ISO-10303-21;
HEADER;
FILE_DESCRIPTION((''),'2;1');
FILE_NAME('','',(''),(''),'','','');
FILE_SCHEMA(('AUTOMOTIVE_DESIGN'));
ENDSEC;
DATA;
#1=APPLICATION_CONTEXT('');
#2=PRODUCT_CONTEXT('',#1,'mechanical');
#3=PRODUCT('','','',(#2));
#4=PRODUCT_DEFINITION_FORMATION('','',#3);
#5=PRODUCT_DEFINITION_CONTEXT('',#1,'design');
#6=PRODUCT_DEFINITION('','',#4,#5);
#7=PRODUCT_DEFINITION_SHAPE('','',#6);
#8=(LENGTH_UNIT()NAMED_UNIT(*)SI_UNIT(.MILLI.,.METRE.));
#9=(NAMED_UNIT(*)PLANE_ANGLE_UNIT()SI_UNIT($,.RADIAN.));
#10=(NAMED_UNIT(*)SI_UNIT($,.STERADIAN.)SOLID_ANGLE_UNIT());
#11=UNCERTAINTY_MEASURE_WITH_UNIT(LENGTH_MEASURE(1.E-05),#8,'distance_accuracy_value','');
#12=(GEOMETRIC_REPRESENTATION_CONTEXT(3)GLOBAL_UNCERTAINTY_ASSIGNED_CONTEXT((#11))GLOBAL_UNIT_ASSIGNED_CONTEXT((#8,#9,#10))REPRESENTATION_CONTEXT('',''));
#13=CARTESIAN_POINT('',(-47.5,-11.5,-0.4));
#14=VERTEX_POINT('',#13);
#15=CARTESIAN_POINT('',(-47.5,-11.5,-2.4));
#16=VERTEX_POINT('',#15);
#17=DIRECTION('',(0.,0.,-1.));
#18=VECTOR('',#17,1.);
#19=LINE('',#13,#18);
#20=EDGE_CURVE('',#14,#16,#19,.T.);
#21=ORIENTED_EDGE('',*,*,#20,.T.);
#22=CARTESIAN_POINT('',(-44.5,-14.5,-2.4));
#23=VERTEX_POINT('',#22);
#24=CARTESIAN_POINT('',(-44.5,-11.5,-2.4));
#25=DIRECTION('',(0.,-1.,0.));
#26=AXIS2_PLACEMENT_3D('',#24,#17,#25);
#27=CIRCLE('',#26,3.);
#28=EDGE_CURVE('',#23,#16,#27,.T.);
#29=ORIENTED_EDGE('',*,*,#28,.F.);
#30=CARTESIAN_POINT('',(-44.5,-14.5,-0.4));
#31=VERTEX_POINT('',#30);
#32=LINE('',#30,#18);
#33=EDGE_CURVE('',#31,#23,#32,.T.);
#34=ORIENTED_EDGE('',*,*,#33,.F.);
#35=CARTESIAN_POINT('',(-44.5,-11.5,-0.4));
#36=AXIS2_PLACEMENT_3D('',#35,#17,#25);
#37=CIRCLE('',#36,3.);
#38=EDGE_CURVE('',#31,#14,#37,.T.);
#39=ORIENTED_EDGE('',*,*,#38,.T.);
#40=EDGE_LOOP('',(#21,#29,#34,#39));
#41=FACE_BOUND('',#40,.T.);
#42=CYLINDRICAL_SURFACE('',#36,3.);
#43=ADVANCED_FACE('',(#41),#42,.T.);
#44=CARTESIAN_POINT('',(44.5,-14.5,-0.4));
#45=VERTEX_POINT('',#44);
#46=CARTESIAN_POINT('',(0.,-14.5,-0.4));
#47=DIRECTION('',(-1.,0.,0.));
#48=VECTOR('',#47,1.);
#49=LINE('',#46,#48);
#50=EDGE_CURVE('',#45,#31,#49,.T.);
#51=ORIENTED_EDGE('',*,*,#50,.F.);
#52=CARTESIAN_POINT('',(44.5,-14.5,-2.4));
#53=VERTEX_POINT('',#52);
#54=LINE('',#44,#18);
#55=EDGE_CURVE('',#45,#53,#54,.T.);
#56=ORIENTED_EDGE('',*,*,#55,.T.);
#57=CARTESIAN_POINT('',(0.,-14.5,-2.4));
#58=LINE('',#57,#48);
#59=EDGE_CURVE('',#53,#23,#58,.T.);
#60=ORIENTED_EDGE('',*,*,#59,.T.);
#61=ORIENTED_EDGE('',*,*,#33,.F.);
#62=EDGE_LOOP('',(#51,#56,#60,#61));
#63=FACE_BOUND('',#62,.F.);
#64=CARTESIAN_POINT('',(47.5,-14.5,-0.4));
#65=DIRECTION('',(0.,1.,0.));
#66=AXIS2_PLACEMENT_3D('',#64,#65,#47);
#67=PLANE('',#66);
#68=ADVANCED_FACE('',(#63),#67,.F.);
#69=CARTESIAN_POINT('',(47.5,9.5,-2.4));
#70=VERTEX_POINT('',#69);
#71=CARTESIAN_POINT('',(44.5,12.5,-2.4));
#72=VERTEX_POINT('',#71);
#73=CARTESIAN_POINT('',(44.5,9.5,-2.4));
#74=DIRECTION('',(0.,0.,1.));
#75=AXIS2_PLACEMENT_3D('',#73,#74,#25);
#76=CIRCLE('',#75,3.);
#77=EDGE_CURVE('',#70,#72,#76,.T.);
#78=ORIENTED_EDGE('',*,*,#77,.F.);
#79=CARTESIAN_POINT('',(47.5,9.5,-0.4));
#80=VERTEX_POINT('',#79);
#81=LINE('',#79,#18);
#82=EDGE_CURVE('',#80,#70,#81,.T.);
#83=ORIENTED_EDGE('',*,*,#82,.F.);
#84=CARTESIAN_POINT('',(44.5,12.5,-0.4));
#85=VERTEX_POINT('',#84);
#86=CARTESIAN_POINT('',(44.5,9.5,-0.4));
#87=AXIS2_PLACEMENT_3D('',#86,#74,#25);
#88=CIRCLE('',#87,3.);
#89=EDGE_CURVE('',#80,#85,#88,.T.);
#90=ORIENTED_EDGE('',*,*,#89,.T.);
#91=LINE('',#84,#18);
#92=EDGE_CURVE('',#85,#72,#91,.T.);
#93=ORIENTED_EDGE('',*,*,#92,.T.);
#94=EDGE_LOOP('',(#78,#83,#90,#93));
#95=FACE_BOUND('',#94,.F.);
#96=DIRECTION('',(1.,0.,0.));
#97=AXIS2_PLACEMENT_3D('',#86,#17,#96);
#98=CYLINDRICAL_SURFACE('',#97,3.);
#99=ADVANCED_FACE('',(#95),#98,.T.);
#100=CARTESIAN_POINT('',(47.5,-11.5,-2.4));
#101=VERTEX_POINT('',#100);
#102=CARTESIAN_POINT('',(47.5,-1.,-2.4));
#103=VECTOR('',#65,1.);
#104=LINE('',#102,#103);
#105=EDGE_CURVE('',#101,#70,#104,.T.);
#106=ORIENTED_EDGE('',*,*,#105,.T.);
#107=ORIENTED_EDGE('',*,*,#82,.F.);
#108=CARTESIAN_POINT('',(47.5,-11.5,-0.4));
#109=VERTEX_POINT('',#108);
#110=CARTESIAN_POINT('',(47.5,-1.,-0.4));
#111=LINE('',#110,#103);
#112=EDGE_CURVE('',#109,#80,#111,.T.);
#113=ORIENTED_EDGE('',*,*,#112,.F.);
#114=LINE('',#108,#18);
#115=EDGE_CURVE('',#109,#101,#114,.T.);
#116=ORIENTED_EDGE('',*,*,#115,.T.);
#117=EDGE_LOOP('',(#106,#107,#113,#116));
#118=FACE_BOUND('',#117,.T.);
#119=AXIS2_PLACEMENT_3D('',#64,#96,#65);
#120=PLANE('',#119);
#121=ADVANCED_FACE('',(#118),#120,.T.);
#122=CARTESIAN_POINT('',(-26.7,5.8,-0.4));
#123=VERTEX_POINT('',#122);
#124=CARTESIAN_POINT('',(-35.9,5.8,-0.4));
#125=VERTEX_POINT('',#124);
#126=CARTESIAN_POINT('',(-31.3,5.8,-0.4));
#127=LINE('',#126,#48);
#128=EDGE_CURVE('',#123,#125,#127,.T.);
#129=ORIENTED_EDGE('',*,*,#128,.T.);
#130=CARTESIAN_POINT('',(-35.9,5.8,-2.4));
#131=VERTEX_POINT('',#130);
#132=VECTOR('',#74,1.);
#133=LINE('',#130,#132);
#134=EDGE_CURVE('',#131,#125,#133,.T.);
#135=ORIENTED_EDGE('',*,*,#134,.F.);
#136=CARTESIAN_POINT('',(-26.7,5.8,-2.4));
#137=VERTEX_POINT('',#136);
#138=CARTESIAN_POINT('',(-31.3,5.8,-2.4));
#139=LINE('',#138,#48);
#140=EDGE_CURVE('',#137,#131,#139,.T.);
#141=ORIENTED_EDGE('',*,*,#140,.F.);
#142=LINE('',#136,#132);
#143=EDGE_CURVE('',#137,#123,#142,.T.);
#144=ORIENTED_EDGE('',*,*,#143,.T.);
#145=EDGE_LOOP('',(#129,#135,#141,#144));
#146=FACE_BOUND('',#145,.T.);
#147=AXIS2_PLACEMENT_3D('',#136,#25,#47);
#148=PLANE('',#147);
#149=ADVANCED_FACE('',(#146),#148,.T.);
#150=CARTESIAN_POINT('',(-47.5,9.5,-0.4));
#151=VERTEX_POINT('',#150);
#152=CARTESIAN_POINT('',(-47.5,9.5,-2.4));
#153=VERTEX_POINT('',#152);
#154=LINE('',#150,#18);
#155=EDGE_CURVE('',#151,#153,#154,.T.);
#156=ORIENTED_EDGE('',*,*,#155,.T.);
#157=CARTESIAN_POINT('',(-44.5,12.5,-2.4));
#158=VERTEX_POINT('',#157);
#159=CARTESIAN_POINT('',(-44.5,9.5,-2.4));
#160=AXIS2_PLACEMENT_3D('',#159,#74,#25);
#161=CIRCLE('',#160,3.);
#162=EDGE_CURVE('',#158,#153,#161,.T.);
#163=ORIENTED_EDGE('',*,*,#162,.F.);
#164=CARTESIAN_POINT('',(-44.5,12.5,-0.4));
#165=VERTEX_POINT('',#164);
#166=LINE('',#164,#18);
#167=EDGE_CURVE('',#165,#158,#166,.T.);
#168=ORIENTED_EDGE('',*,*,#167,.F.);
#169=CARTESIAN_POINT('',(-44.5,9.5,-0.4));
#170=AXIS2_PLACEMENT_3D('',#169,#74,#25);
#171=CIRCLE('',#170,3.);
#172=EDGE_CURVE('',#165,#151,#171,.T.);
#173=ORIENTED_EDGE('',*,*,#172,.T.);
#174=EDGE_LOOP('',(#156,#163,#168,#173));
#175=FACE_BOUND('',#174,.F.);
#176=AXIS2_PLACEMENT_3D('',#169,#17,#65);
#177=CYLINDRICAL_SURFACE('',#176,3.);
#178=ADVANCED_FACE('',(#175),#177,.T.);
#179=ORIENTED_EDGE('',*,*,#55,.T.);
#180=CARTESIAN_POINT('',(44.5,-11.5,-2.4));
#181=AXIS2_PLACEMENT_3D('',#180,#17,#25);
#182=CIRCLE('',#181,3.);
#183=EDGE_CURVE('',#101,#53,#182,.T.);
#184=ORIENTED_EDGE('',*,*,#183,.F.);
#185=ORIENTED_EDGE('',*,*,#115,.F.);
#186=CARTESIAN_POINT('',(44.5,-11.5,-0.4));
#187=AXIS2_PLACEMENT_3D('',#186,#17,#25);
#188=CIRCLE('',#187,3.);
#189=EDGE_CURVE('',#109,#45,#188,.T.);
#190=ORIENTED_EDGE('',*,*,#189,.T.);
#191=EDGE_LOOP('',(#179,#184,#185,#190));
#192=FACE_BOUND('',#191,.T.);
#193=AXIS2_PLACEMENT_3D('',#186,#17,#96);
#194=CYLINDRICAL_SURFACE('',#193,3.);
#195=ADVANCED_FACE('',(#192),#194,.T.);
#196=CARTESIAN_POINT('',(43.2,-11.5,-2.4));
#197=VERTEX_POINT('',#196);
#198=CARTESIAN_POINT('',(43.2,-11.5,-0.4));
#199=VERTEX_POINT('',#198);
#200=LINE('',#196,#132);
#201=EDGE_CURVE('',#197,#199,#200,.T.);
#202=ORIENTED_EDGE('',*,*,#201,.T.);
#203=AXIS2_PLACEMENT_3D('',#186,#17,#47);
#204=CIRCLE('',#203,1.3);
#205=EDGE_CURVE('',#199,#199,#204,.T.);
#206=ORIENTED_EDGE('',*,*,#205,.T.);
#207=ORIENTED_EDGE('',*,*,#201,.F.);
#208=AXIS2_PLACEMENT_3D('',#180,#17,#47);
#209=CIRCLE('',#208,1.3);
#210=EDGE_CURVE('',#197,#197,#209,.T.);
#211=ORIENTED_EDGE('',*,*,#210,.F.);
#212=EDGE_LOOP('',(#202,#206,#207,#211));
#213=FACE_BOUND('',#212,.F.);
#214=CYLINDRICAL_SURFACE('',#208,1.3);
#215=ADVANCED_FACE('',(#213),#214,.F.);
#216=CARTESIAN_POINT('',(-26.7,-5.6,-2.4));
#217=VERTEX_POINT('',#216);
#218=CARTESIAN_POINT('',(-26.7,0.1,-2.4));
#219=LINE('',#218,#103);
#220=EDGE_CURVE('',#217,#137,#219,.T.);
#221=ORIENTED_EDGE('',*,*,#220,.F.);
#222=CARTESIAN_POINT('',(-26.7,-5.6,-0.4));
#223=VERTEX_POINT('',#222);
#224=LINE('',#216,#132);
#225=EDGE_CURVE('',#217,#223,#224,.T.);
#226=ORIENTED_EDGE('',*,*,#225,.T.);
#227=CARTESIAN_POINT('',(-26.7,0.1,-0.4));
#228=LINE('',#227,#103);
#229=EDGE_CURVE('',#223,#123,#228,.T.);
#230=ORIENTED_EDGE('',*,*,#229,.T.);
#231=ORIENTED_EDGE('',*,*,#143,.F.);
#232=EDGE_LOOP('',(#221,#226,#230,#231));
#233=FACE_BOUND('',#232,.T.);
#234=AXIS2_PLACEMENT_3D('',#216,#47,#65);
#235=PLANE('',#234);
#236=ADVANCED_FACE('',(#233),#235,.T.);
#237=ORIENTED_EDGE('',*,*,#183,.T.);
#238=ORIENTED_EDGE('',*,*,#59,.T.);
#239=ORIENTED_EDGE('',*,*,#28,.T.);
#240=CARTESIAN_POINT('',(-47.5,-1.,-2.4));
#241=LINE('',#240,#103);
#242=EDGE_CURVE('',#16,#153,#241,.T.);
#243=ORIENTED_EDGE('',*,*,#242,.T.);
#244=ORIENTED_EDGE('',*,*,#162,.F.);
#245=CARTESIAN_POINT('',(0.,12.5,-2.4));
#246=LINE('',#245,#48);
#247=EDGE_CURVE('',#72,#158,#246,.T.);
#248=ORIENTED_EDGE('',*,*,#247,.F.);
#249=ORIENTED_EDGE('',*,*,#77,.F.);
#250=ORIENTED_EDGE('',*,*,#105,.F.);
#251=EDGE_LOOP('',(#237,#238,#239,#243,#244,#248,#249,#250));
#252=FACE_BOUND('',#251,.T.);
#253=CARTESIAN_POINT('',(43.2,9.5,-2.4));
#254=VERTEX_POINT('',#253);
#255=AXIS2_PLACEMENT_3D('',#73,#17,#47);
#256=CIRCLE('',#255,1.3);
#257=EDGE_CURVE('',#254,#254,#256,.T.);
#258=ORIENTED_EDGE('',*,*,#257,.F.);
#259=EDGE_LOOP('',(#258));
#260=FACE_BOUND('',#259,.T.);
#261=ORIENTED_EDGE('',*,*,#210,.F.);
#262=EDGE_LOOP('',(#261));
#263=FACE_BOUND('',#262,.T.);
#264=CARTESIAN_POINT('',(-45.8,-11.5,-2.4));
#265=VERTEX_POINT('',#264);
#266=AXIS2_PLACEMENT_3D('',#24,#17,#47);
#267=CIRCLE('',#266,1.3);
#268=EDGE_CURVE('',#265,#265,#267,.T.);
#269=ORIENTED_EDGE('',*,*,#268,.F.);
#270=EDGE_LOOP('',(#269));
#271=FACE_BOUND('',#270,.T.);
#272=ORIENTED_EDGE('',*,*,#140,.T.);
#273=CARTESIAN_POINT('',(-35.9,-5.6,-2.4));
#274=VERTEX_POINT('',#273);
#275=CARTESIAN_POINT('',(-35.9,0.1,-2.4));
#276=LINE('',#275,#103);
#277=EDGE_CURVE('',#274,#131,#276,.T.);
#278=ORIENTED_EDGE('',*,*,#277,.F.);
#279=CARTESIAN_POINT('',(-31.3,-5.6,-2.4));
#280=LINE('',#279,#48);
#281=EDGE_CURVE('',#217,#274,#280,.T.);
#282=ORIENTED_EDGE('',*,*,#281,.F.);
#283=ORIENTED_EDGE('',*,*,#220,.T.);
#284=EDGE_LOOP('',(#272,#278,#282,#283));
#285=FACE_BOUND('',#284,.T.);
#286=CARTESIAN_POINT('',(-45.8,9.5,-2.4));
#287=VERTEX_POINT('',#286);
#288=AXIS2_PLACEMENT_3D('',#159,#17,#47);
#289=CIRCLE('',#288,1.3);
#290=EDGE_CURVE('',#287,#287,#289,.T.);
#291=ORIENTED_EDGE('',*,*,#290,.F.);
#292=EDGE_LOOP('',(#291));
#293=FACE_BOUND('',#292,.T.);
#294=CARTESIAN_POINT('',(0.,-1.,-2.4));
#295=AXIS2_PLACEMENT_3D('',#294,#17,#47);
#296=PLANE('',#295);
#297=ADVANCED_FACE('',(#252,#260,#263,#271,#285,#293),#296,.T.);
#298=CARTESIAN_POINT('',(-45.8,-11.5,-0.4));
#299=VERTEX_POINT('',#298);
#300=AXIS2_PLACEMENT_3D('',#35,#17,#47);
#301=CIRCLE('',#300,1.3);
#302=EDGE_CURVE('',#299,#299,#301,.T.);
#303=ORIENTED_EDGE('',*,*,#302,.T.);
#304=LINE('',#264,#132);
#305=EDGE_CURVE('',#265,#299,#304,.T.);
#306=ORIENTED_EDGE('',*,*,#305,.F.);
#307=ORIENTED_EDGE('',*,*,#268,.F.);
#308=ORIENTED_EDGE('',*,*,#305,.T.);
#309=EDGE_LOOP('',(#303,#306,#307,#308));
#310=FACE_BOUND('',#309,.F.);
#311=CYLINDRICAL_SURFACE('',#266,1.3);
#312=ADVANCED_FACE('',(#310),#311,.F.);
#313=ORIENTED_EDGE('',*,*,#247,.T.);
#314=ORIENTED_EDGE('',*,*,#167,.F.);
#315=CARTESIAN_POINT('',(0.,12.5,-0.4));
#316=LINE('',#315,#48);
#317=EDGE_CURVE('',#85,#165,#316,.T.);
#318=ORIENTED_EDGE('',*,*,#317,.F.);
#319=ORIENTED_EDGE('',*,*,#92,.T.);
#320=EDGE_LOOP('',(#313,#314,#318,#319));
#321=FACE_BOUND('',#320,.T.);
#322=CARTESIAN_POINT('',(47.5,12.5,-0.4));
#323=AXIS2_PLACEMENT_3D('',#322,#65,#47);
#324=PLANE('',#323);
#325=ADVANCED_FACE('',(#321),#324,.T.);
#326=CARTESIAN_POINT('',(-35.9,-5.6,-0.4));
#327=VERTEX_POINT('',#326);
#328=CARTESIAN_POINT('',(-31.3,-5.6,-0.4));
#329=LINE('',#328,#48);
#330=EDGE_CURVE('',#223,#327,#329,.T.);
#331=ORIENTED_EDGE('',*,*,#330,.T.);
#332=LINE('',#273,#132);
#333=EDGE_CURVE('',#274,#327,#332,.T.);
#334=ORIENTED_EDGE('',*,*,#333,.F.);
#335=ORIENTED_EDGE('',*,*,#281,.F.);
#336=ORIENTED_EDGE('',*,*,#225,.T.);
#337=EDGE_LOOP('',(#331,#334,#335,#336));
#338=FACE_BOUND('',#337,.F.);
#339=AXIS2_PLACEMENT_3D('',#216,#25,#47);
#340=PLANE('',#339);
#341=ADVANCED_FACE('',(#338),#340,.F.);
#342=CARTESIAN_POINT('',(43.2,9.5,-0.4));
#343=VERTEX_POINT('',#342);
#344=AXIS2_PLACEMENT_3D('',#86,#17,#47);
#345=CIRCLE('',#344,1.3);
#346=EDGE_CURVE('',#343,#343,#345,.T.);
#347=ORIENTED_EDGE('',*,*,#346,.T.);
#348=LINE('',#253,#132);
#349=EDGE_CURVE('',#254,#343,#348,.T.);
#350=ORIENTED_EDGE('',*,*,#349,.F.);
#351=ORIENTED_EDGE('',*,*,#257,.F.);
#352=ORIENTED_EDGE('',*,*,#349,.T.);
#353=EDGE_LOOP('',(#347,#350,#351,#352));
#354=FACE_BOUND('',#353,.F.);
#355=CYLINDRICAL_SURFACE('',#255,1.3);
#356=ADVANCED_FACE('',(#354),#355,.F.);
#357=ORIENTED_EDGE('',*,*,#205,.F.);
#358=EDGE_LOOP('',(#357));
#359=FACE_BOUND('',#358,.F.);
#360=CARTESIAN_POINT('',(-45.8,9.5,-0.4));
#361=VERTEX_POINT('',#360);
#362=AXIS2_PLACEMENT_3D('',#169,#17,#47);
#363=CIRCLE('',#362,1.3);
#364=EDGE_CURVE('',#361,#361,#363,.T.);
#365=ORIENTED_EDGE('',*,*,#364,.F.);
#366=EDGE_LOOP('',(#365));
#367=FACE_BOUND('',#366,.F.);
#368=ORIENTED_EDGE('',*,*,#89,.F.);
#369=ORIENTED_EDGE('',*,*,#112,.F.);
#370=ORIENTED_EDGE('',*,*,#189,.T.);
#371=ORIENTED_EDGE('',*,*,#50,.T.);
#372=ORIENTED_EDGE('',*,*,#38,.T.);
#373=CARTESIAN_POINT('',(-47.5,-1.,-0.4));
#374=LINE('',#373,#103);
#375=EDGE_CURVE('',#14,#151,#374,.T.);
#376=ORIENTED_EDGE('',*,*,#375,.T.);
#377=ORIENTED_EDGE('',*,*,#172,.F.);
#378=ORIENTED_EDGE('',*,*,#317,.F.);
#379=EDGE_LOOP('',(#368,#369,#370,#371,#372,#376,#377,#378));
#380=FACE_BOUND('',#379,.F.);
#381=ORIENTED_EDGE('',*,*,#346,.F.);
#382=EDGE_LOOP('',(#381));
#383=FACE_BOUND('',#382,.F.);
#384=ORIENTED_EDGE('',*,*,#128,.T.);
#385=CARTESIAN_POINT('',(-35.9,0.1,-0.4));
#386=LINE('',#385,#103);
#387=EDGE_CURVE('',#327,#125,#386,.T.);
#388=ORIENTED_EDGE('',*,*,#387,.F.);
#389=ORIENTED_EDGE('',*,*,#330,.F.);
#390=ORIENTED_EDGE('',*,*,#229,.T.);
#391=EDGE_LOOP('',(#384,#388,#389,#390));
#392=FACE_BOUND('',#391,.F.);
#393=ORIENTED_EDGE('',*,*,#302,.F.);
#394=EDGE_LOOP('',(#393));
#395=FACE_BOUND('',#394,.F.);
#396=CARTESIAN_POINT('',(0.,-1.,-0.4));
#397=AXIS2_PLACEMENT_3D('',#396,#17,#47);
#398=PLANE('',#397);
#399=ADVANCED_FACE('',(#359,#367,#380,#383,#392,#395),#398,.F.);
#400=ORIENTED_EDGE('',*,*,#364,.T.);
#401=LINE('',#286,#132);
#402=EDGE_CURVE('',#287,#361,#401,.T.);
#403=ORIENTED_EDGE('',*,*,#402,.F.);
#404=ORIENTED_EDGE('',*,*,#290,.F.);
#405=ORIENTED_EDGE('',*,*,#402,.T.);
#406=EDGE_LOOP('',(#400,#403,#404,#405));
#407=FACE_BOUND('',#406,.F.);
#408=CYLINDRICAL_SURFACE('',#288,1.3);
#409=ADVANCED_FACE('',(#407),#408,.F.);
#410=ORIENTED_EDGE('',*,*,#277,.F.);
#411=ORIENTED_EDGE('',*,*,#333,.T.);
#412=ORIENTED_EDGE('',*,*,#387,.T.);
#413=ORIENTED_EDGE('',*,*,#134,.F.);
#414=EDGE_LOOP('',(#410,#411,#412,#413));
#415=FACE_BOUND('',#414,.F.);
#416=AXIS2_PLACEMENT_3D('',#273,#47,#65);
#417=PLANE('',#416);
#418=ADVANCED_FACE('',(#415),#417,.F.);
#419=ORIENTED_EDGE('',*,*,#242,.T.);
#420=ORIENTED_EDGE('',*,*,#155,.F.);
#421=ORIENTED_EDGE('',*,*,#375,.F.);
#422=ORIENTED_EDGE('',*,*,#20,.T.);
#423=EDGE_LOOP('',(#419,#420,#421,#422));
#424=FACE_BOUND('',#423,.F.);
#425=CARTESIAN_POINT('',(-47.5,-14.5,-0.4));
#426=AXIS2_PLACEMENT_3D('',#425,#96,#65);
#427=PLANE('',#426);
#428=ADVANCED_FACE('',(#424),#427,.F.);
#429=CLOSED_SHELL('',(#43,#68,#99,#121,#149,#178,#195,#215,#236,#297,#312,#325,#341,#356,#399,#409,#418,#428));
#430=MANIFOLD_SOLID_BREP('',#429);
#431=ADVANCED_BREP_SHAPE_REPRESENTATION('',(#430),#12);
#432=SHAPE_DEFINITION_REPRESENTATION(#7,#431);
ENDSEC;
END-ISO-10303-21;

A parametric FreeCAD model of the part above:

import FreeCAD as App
import Part
import Sketcher
Q = App.Units.Quantity


def edges_at(feature, points):
    """Names of the edges that pass closest to the given points."""
    edges = feature.Shape.Edges
    near = lambda p: min(range(len(edges)), key=lambda i: edges[i].distToShape(Part.Vertex(*p))[0])
    return sorted({f"Edge{near(p) + 1}" for p in points})


def add_polygon(sketch, points):
    """Adds a closed chain of lines whose ends are joined by coincident constraints."""
    first, n = sketch.GeometryCount, len(points)
    for a, b in zip(points, points[1:] + points[:1]):
        sketch.addGeometry(Part.LineSegment(App.Vector(*a, 0), App.Vector(*b, 0)), False)
    for i in range(n):
        sketch.addConstraint(Sketcher.Constraint("Coincident", first + i, 2, first + (i + 1) % n, 1))

doc = App.newDocument("Part")
body = doc.addObject("PartDesign::Body", "Body")

sketch1 = body.newObject("Sketcher::SketchObject", "Sketch")
sketch1.AttachmentSupport = (doc.getObject("XY_Plane"), [""])
sketch1.MapMode = "FlatFace"
add_polygon(sketch1, [(-47.5, 13.5), (-47.5, -13.5), (47.5, -13.5), (47.5, 13.5)])
sketch1.addConstraint([
    Sketcher.Constraint("Vertical", 0),
    Sketcher.Constraint("Horizontal", 1),
    Sketcher.Constraint("Vertical", 2),
    Sketcher.Constraint("Horizontal", 3),
    Sketcher.Constraint("Symmetric", 0, 2, 2, 2, -1, 1),
    Sketcher.Constraint("DistanceX", 1, 1, 1, 2, Q("95 mm")),
    Sketcher.Constraint("DistanceY", 0, 2, 0, 1, Q("27 mm")),
])
pad1 = body.newObject("PartDesign::Pad", "Pad")
pad1.Profile = sketch1
pad1.Length = 2

sketch2 = body.newObject("Sketcher::SketchObject", "Sketch001")
sketch2.AttachmentSupport = (doc.getObject("XY_Plane"), [""])
sketch2.MapMode = "FlatFace"
sketch2.AttachmentOffset = App.Placement(App.Vector(0, 0, 2), App.Rotation())
sketch2.addGeometry([
    Part.Circle(App.Vector(-44.5, 10.5, 0), App.Vector(0, 0, 1), 1.3),
    Part.Circle(App.Vector(44.5, 10.5, 0), App.Vector(0, 0, 1), 1.3),
    Part.Circle(App.Vector(44.5, -10.5, 0), App.Vector(0, 0, 1), 1.3),
    Part.Circle(App.Vector(-44.5, -10.5, 0), App.Vector(0, 0, 1), 1.3),
], False)
sketch2.addConstraint([
    Sketcher.Constraint("Equal", 0, 1),
    Sketcher.Constraint("Equal", 1, 2),
    Sketcher.Constraint("Equal", 2, 3),
    Sketcher.Constraint("Symmetric", 0, 3, 2, 3, -1, 1),
    Sketcher.Constraint("Symmetric", 1, 3, 3, 3, -1, 1),
    Sketcher.Constraint("Symmetric", 0, 3, 1, 3, -2),
    Sketcher.Constraint("Diameter", 0, Q("2.6 mm")),
    Sketcher.Constraint("DistanceX", 0, 3, 1, 3, Q("89 mm")),
    Sketcher.Constraint("DistanceY", 2, 3, 1, 3, Q("21 mm")),
])
pocket1 = body.newObject("PartDesign::Pocket", "Pocket")
pocket1.Profile = sketch2
pocket1.Length = 2
doc.recompute()

fillet = body.newObject("PartDesign::Fillet", "Fillet")
fillet.Base = (pocket1, edges_at(pocket1, [
    (-47.5, -13.5, 1),
    (47.5, -13.5, 1),
    (47.5, 13.5, 1),
    (-47.5, 13.5, 1),
]))
fillet.Radius = 3

sketch3 = body.newObject("Sketcher::SketchObject", "Sketch002")
sketch3.AttachmentSupport = (doc.getObject("XY_Plane"), [""])
sketch3.MapMode = "FlatFace"
sketch3.AttachmentOffset = App.Placement(App.Vector(0, 0, 2), App.Rotation())
add_polygon(sketch3, [(26.7, 6.8), (26.7, -4.6), (35.9, -4.6), (35.9, 6.8)])
sketch3.addConstraint([
    Sketcher.Constraint("Vertical", 0),
    Sketcher.Constraint("Horizontal", 1),
    Sketcher.Constraint("Vertical", 2),
    Sketcher.Constraint("Horizontal", 3),
    Sketcher.Constraint("DistanceX", 1, 1, 1, 2, Q("9.2 mm")),
    Sketcher.Constraint("DistanceY", 0, 2, 0, 1, Q("11.4 mm")),
    Sketcher.Constraint("DistanceX", -1, 1, 0, 2, Q("26.7 mm")),
    Sketcher.Constraint("DistanceY", 0, 2, -1, 1, Q("4.6 mm")),
])
pocket2 = body.newObject("PartDesign::Pocket", "Pocket001")
pocket2.Profile = sketch3
pocket2.Length = 2
body2 = doc.addObject("PartDesign::Body", "Body001")
doc.recompute()

body.Placement = App.Placement(App.Vector(0, -1, -0.4), App.Rotation(App.Vector(0, 1, 0), 180))
boolean = body2.newObject("PartDesign::Boolean", "Boolean")
boolean.Type = "Fuse"
boolean.addObjects([body])

doc.recompute()
